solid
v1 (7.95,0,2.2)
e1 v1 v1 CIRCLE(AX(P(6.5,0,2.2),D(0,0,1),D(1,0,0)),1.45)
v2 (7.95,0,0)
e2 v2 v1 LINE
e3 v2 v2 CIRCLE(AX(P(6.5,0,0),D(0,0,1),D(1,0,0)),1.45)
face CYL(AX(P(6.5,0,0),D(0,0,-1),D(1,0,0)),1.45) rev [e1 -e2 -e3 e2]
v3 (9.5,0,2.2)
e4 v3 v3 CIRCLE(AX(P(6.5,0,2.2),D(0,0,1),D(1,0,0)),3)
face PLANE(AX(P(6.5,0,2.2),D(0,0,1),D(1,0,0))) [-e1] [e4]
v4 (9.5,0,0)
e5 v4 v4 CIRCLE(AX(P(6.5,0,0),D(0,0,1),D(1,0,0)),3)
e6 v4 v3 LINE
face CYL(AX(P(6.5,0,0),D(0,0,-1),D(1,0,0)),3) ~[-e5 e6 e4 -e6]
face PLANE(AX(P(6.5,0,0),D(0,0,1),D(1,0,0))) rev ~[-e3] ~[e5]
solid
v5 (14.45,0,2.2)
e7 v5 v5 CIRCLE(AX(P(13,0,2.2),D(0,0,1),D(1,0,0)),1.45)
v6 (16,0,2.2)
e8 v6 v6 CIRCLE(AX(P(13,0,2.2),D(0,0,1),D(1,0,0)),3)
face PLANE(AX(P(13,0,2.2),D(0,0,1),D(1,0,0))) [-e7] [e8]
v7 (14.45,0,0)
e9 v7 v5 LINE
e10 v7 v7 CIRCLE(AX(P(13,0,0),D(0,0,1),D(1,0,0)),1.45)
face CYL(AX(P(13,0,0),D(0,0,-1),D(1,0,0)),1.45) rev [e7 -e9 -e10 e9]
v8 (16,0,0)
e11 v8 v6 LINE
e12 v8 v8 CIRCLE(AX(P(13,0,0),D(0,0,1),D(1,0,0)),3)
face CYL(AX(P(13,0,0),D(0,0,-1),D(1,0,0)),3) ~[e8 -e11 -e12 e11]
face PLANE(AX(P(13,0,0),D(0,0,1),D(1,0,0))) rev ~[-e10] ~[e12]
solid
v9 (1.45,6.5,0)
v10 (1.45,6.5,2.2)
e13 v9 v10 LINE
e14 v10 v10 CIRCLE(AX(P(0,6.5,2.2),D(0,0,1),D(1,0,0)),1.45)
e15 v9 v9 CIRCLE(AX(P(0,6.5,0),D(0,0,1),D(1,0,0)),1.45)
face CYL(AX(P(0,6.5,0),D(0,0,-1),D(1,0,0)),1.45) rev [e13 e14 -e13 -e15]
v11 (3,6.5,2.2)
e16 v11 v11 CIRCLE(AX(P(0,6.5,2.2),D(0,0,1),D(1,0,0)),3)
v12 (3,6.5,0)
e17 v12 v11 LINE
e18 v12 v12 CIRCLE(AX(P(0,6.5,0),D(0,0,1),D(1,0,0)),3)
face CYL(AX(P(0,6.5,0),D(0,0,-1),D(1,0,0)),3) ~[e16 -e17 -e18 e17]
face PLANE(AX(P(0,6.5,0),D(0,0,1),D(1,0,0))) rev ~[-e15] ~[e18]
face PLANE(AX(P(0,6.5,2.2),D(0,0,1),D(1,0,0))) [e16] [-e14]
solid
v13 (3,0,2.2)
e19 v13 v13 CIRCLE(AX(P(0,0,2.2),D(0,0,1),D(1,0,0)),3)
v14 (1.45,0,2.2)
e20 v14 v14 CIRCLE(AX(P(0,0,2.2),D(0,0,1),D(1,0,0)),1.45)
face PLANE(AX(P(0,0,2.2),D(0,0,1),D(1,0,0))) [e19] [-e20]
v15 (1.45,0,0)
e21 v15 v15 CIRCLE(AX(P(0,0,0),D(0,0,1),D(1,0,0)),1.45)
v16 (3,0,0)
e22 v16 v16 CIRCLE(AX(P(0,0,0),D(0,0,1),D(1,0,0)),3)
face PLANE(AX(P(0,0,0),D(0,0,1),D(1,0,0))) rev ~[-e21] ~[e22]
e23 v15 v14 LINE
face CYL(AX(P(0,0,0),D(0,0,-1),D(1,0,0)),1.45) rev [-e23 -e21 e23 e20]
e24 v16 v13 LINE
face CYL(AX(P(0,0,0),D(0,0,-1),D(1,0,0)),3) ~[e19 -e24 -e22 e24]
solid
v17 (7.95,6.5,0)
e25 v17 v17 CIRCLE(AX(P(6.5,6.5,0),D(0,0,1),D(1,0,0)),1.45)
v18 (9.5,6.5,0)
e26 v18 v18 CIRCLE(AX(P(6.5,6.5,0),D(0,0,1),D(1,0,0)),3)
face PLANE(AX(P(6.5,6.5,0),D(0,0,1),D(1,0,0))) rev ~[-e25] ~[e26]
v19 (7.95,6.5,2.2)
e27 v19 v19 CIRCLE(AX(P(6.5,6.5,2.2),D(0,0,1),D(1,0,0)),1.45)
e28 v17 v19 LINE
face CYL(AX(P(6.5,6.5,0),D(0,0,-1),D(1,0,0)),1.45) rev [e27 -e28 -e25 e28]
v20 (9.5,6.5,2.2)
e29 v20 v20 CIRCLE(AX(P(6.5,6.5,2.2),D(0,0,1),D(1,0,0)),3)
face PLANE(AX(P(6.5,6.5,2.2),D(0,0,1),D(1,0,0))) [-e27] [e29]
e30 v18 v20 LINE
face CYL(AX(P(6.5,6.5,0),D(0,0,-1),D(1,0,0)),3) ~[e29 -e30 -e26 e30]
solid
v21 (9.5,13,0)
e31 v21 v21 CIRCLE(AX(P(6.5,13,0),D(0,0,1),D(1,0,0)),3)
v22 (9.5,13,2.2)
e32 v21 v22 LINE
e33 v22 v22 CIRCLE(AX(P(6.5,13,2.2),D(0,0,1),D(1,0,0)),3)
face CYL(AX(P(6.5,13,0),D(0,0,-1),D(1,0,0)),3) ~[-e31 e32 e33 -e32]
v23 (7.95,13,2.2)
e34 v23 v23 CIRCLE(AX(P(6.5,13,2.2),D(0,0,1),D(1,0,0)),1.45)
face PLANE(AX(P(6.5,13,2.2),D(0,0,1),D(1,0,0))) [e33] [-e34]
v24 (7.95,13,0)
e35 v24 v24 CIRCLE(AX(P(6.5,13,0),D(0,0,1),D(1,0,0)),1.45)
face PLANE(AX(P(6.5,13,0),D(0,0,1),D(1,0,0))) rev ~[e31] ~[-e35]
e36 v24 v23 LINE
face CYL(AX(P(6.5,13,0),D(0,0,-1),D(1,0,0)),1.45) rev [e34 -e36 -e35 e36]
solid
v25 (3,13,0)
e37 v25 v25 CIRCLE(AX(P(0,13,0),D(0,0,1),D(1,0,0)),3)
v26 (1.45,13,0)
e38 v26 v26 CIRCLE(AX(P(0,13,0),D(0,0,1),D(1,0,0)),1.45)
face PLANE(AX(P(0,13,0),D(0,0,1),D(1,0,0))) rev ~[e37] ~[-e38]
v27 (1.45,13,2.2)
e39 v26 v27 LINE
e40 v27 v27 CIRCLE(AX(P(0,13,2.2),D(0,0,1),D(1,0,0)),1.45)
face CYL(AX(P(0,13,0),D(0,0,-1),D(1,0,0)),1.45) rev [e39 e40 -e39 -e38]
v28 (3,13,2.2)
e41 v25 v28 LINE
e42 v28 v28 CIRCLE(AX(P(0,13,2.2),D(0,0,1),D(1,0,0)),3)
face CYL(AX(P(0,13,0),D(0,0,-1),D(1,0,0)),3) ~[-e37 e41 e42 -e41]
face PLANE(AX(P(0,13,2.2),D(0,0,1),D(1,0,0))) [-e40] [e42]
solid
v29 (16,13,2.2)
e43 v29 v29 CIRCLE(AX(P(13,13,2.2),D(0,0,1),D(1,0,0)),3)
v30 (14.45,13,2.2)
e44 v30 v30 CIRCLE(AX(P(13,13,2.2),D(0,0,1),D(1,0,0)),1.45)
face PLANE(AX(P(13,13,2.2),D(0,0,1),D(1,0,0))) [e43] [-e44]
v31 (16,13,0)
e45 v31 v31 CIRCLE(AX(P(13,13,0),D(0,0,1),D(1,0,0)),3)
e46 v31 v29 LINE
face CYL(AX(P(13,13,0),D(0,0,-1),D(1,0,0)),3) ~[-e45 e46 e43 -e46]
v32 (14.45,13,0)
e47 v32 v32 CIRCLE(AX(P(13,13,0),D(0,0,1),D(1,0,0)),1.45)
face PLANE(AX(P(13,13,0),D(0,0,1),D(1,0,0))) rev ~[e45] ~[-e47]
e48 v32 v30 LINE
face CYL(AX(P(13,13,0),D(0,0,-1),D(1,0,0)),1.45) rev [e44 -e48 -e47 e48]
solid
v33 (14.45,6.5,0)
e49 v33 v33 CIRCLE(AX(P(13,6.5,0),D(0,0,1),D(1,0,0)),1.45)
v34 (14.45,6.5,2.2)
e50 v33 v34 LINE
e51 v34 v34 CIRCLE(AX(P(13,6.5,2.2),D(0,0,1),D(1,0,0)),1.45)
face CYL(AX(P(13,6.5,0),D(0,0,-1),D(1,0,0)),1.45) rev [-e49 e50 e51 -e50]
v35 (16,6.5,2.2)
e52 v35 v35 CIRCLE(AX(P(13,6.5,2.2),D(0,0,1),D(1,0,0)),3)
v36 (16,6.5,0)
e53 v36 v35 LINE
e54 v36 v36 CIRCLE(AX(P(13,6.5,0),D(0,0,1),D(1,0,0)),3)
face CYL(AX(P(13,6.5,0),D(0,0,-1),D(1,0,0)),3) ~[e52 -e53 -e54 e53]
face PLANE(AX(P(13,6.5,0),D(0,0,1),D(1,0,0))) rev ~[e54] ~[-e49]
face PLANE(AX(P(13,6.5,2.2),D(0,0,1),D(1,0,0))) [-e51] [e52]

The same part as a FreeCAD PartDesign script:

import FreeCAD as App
import Part
import Sketcher

doc = App.newDocument("Part")
body = doc.addObject("PartDesign::Body", "Body")
body.AllowCompound = True

# Sketch on XY plane
sketch1 = doc.addObject("Sketcher::SketchObject", "Sketch")
body.addObject(sketch1)
sketch1.AttachmentSupport = (doc.XY_Plane, [""])
sketch1.MapMode = "FlatFace"
sketch1.addGeometry([
    Part.Circle(App.Vector(13, 13, 0), App.Vector(0, 0, 1), 3),  # 0
    Part.Circle(App.Vector(13, 13, 0), App.Vector(0, 0, 1), 1.4),  # 1
    Part.Circle(App.Vector(6.5, 13, 0), App.Vector(0, 0, 1), 3),  # 2
    Part.Circle(App.Vector(6.5, 13, 0), App.Vector(0, 0, 1), 1.4),  # 3
    Part.Circle(App.Vector(0, 13, 0), App.Vector(0, 0, 1), 3),  # 4
    Part.Circle(App.Vector(0, 13, 0), App.Vector(0, 0, 1), 1.4),  # 5
    Part.Circle(App.Vector(0, 6.5, 0), App.Vector(0, 0, 1), 3),  # 6
    Part.Circle(App.Vector(0, 6.5, 0), App.Vector(0, 0, 1), 1.4),  # 7
    Part.Circle(App.Vector(6.5, 6.5, 0), App.Vector(0, 0, 1), 3),  # 8
    Part.Circle(App.Vector(6.5, 6.5, 0), App.Vector(0, 0, 1), 1.4),  # 9
    Part.Circle(App.Vector(13, 6.5, 0), App.Vector(0, 0, 1), 3),  # 10
    Part.Circle(App.Vector(13, 6.5, 0), App.Vector(0, 0, 1), 1.4),  # 11
    Part.Circle(App.Vector(13, 0, 0), App.Vector(0, 0, 1), 3),  # 12
    Part.Circle(App.Vector(13, 0, 0), App.Vector(0, 0, 1), 1.4),  # 13
    Part.Circle(App.Vector(6.5, 0, 0), App.Vector(0, 0, 1), 3),  # 14
    Part.Circle(App.Vector(6.5, 0, 0), App.Vector(0, 0, 1), 1.4),  # 15
    Part.Circle(App.Vector(0, 0, 0), App.Vector(0, 0, 1), 3),  # 16
    Part.Circle(App.Vector(0, 0, 0), App.Vector(0, 0, 1), 1.4),  # 17
], False)
sketch1.addConstraint([
    Sketcher.Constraint("Coincident", 16, 3, -1, 1),
    Sketcher.Constraint("Coincident", 17, 3, -1, 1),
    Sketcher.Constraint("Coincident", 1, 3, 0, 3),
    Sketcher.Constraint("Coincident", 3, 3, 2, 3),
    Sketcher.Constraint("Coincident", 5, 3, 4, 3),
    Sketcher.Constraint("Coincident", 7, 3, 6, 3),
    Sketcher.Constraint("Coincident", 9, 3, 8, 3),
    Sketcher.Constraint("Coincident", 11, 3, 10, 3),
    Sketcher.Constraint("Coincident", 13, 3, 12, 3),
    Sketcher.Constraint("Coincident", 15, 3, 14, 3),
    Sketcher.Constraint("Equal", 0, 2),
    Sketcher.Constraint("Equal", 1, 3),
    Sketcher.Constraint("Equal", 2, 4),
    Sketcher.Constraint("Equal", 3, 5),
    Sketcher.Constraint("Equal", 4, 6),
    Sketcher.Constraint("Equal", 5, 7),
    Sketcher.Constraint("Equal", 6, 8),
    Sketcher.Constraint("Equal", 7, 9),
    Sketcher.Constraint("Equal", 8, 10),
    Sketcher.Constraint("Equal", 9, 11),
    Sketcher.Constraint("Equal", 10, 12),
    Sketcher.Constraint("Equal", 11, 13),
    Sketcher.Constraint("Equal", 12, 14),
    Sketcher.Constraint("Equal", 13, 15),
    Sketcher.Constraint("Equal", 14, 16),
    Sketcher.Constraint("Equal", 15, 17),
    Sketcher.Constraint("PointOnObject", 4, 3, -2),
    Sketcher.Constraint("PointOnObject", 6, 3, -2),
    Sketcher.Constraint("PointOnObject", 12, 3, -1),
    Sketcher.Constraint("PointOnObject", 14, 3, -1),
    Sketcher.Constraint("Horizontal", 1, 3, 2, 3),
    Sketcher.Constraint("Horizontal", 3, 3, 4, 3),
    Sketcher.Constraint("Horizontal", 7, 3, 8, 3),
    Sketcher.Constraint("Horizontal", 9, 3, 10, 3),
    Sketcher.Constraint("Vertical", 3, 3, 8, 3),
    Sketcher.Constraint("Vertical", 1, 3, 10, 3),
    Sketcher.Constraint("Vertical", 11, 3, 12, 3),
    Sketcher.Constraint("Vertical", 9, 3, 14, 3),
    Sketcher.Constraint("Diameter", 0, 6.0),
    Sketcher.Constraint("Diameter", 1, 2.9),
    Sketcher.Constraint("DistanceX", -1, 1, 0, 3, 13.0),
    Sketcher.Constraint("DistanceY", -1, 1, 0, 3, 13.0),
    Sketcher.Constraint("DistanceX", -1, 1, 2, 3, 6.5),
    Sketcher.Constraint("DistanceY", -1, 1, 6, 3, 6.5),
])
pad1 = doc.addObject("PartDesign::Pad", "Pad")
body.addObject(pad1)
pad1.Profile = sketch1
pad1.Length = 2.2

doc.recompute()
